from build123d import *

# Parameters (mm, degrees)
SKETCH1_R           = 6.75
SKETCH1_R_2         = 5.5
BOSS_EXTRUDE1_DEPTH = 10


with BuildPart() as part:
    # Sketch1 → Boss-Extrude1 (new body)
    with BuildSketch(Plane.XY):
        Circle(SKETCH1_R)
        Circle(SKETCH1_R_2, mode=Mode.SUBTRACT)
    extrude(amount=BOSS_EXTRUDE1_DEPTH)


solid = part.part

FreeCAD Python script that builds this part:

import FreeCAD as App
import Part
import Sketcher
Q = App.Units.Quantity

doc = App.newDocument("Part")
body = doc.addObject("PartDesign::Body", "Body")

# Sketch on XY plane
sketch1 = doc.addObject("Sketcher::SketchObject", "Sketch")
body.addObject(sketch1)
sketch1.AttachmentSupport = (doc.XY_Plane, [""])
sketch1.MapMode = "FlatFace"
sketch1.addGeometry([
    Part.Circle(App.Vector(0, 0, 0), App.Vector(0, 0, 1), 7),
    Part.Circle(App.Vector(0, 0, 0), App.Vector(0, 0, 1), 6),
], False)
sketch1.addConstraint([
    Sketcher.Constraint("Coincident", 0, 3, -1, 1),
    Sketcher.Constraint("Coincident", 1, 3, -1, 1),
    Sketcher.Constraint("Diameter", 1, Q("11 mm")),
    Sketcher.Constraint("Diameter", 0, Q("13.5 mm")),
])
pad1 = doc.addObject("PartDesign::Pad", "Pad")
body.addObject(pad1)
pad1.Profile = sketch1
pad1.Length = 10

doc.recompute()
